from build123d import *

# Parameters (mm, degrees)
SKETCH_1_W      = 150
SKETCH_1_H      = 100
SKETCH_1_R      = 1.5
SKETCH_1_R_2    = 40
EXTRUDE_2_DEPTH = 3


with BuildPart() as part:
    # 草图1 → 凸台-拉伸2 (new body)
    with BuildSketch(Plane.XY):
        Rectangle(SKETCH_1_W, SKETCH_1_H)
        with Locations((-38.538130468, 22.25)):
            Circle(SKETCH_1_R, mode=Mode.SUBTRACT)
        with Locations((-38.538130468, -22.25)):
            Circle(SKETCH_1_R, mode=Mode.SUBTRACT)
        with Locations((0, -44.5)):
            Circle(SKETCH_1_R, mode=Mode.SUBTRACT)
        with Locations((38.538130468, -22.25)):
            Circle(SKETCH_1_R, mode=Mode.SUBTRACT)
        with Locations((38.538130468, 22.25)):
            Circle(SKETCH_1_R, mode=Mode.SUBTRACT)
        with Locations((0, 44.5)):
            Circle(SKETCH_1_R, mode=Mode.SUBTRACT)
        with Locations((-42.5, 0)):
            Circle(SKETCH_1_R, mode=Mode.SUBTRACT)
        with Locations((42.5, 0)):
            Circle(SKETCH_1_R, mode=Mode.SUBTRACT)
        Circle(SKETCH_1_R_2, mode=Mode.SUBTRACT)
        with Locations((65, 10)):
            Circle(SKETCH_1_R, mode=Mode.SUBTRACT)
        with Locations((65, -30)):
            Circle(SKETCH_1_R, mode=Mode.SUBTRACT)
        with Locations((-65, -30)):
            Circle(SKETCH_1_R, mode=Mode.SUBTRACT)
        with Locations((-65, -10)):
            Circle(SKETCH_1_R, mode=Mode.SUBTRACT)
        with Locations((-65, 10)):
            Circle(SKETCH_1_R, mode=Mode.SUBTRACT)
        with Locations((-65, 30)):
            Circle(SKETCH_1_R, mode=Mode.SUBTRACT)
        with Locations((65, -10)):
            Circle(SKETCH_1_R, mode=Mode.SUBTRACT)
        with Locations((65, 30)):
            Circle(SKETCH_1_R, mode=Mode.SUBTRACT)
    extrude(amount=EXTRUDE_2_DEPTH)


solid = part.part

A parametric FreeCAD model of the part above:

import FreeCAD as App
import Part
import Sketcher

V = App.Vector


def add_polygon(sketch, points):
    """Adds a closed chain of lines whose ends are joined by coincident constraints."""
    first, n = sketch.GeometryCount, len(points)
    for a, b in zip(points, points[1:] + points[:1]):
        sketch.addGeometry(Part.LineSegment(App.Vector(*a, 0), App.Vector(*b, 0)), False)
    for i in range(n):
        sketch.addConstraint(Sketcher.Constraint("Coincident", first + i, 2, first + (i + 1) % n, 1))

doc = App.newDocument("Part")
body = doc.addObject("PartDesign::Body", "Body")

# Sketch on XY plane
sketch1 = body.newObject("Sketcher::SketchObject", "Sketch")
sketch1.AttachmentSupport = (doc.getObject("XY_Plane"), [""])
sketch1.MapMode = "FlatFace"
add_polygon(sketch1, [(-75, 50), (-75, -50), (75, -50), (75, 50)])  # lines 0-3
sketch1.addGeometry(Part.Circle(V(-65, -30, 0), V(0, 0, 1), 1.5), False)  # 4
sketch1.addGeometry(Part.Circle(V(-38.5, -22.2, 0), V(0, 0, 1), 1.5), False)  # 5
sketch1.addGeometry(Part.Circle(V(-65, -10, 0), V(0, 0, 1), 1.5), False)  # 6
sketch1.addGeometry(Part.Circle(V(0, -44.5, 0), V(0, 0, 1), 1.5), False)  # 7
sketch1.addGeometry(Part.Circle(V(65, -30, 0), V(0, 0, 1), 1.5), False)  # 8
sketch1.addGeometry(Part.Circle(V(38.5, -22.2, 0), V(0, 0, 1), 1.5), False)  # 9
sketch1.addGeometry(Part.Circle(V(65, -10, 0), V(0, 0, 1), 1.5), False)  # 10
sketch1.addGeometry(Part.Circle(V(-65, 10, 0), V(0, 0, 1), 1.5), False)  # 11
sketch1.addGeometry(Part.Circle(V(-42.5, 0, 0), V(0, 0, 1), 1.5), False)  # 12
sketch1.addGeometry(Part.Circle(V(-38.5, 22.2, 0), V(0, 0, 1), 1.5), False)  # 13
sketch1.addGeometry(Part.Circle(V(-65, 30, 0), V(0, 0, 1), 1.5), False)  # 14
sketch1.addGeometry(Part.Circle(V(0, 0, 0), V(0, 0, 1), 40), False)  # 15
sketch1.addGeometry(Part.Circle(V(42.5, 0, 0), V(0, 0, 1), 1.5), False)  # 16
sketch1.addGeometry(Part.Circle(V(65, 10, 0), V(0, 0, 1), 1.5), False)  # 17
sketch1.addGeometry(Part.Circle(V(38.5, 22.2, 0), V(0, 0, 1), 1.5), False)  # 18
sketch1.addGeometry(Part.Circle(V(0, 44.5, 0), V(0, 0, 1), 1.5), False)  # 19
sketch1.addGeometry(Part.Circle(V(65, 30, 0), V(0, 0, 1), 1.5), False)  # 20
sketch1.addConstraint(Sketcher.Constraint("Vertical", 0))
sketch1.addConstraint(Sketcher.Constraint("Horizontal", 1))
sketch1.addConstraint(Sketcher.Constraint("Vertical", 2))
sketch1.addConstraint(Sketcher.Constraint("Horizontal", 3))
sketch1.addConstraint(Sketcher.Constraint("Coincident", 15, 3, -1, 1))
sketch1.addConstraint(Sketcher.Constraint("Equal", 4, 5))
sketch1.addConstraint(Sketcher.Constraint("Equal", 5, 6))
sketch1.addConstraint(Sketcher.Constraint("Equal", 6, 7))
sketch1.addConstraint(Sketcher.Constraint("Equal", 7, 8))
sketch1.addConstraint(Sketcher.Constraint("Equal", 8, 9))
sketch1.addConstraint(Sketcher.Constraint("Equal", 9, 10))
sketch1.addConstraint(Sketcher.Constraint("Equal", 10, 11))
sketch1.addConstraint(Sketcher.Constraint("Equal", 11, 12))
sketch1.addConstraint(Sketcher.Constraint("Equal", 12, 13))
sketch1.addConstraint(Sketcher.Constraint("Equal", 13, 14))
sketch1.addConstraint(Sketcher.Constraint("Equal", 14, 16))
sketch1.addConstraint(Sketcher.Constraint("Equal", 16, 17))
sketch1.addConstraint(Sketcher.Constraint("Equal", 17, 18))
sketch1.addConstraint(Sketcher.Constraint("Equal", 18, 19))
sketch1.addConstraint(Sketcher.Constraint("Equal", 19, 20))
sketch1.addConstraint(Sketcher.Constraint("Symmetric", 10, 3, 11, 3, -1, 1))
sketch1.addConstraint(Sketcher.Constraint("Symmetric", 9, 3, 13, 3, -1, 1))
sketch1.addConstraint(Sketcher.Constraint("Symmetric", 8, 3, 14, 3, -1, 1))
sketch1.addConstraint(Sketcher.Constraint("Symmetric", 12, 3, 16, 3, -1, 1))
sketch1.addConstraint(Sketcher.Constraint("Symmetric", 6, 3, 17, 3, -1, 1))
sketch1.addConstraint(Sketcher.Constraint("Symmetric", 5, 3, 18, 3, -1, 1))
sketch1.addConstraint(Sketcher.Constraint("Symmetric", 7, 3, 19, 3, -1, 1))
sketch1.addConstraint(Sketcher.Constraint("Symmetric", 4, 3, 20, 3, -1, 1))
sketch1.addConstraint(Sketcher.Constraint("Symmetric", 0, 2, 2, 2, -1, 1))
sketch1.addConstraint(Sketcher.Constraint("Symmetric", 4, 3, 8, 3, -2))
sketch1.addConstraint(Sketcher.Constraint("Symmetric", 5, 3, 9, 3, -2))
sketch1.addConstraint(Sketcher.Constraint("Symmetric", 6, 3, 10, 3, -2))
sketch1.addConstraint(Sketcher.Constraint("PointOnObject", 7, 3, -2))
sketch1.addConstraint(Sketcher.Constraint("PointOnObject", 12, 3, -1))
sketch1.addConstraint(Sketcher.Constraint("Vertical", 4, 3, 6, 3))
sketch1.addConstraint(Sketcher.Constraint("Diameter", 4, 3.0))
sketch1.addConstraint(Sketcher.Constraint("Diameter", 15, 80.0))
sketch1.addConstraint(Sketcher.Constraint("DistanceX", 1, 1, 1, 2, 150.0))
sketch1.addConstraint(Sketcher.Constraint("DistanceY", 0, 2, 0, 1, 100.0))
sketch1.addConstraint(Sketcher.Constraint("DistanceX", 4, 3, -1, 1, 65.0))
sketch1.addConstraint(Sketcher.Constraint("DistanceY", 4, 3, -1, 1, 30.0))
sketch1.addConstraint(Sketcher.Constraint("DistanceY", 6, 3, -1, 1, 10.0))
sketch1.addConstraint(Sketcher.Constraint("DistanceY", 7, 3, -1, 1, 44.5))
sketch1.addConstraint(Sketcher.Constraint("DistanceX", 12, 3, -1, 1, 42.5))
sketch1.addConstraint(Sketcher.Constraint("DistanceY", 5, 3, 13, 3, 44.5))
sketch1.addConstraint(Sketcher.Constraint("DistanceX", 5, 3, -1, 1, 38.53813))
pad1 = body.newObject("PartDesign::Pad", "Pad")
pad1.Profile = sketch1
pad1.Length = 3

doc.recompute()
